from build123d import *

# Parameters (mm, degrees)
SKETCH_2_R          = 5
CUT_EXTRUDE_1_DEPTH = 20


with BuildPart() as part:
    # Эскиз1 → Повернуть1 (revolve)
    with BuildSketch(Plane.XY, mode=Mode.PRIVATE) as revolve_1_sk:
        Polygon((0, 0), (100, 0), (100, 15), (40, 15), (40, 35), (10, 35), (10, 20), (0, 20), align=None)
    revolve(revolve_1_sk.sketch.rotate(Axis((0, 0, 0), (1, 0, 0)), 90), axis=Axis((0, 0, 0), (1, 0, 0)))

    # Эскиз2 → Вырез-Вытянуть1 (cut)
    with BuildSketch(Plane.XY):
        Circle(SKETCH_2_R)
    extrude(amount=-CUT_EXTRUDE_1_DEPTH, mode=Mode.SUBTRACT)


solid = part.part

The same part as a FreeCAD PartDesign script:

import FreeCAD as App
import Part
import Sketcher
Q = App.Units.Quantity


def add_polygon(sketch, points):
    """Adds a closed chain of lines whose ends are joined by coincident constraints."""
    first, n = sketch.GeometryCount, len(points)
    for a, b in zip(points, points[1:] + points[:1]):
        sketch.addGeometry(Part.LineSegment(App.Vector(*a, 0), App.Vector(*b, 0)), False)
    for i in range(n):
        sketch.addConstraint(Sketcher.Constraint("Coincident", first + i, 2, first + (i + 1) % n, 1))

doc = App.newDocument("Part")
body = doc.addObject("PartDesign::Body", "Body")

sketch1 = body.newObject("Sketcher::SketchObject", "Sketch")
sketch1.AttachmentSupport = (doc.getObject("XY_Plane"), [""])
sketch1.MapMode = "FlatFace"
add_polygon(sketch1, [(0, 0), (100, 0), (100, 15), (40, 15), (40, 35), (10, 35), (10, 20), (0, 20)])
sketch1.addConstraint([
    Sketcher.Constraint("Horizontal", 0),
    Sketcher.Constraint("Vertical", 1),
    Sketcher.Constraint("Horizontal", 2),
    Sketcher.Constraint("Vertical", 3),
    Sketcher.Constraint("Horizontal", 4),
    Sketcher.Constraint("Vertical", 5),
    Sketcher.Constraint("Horizontal", 6),
    Sketcher.Constraint("Vertical", 7),
    Sketcher.Constraint("Coincident", 7, 2, -1, 1),
    Sketcher.Constraint("Equal", 1, 5),
    Sketcher.Constraint("DistanceX", 0, 1, 0, 2, Q("100 mm")),
    Sketcher.Constraint("DistanceX", 2, 2, 2, 1, Q("60 mm")),
    Sketcher.Constraint("DistanceX", 4, 2, 4, 1, Q("30 mm")),
    Sketcher.Constraint("DistanceY", 1, 1, 1, 2, Q("15 mm")),
    Sketcher.Constraint("DistanceY", 3, 1, 3, 2, Q("20 mm")),
])
revolution = body.newObject("PartDesign::Revolution", "Revolution")
revolution.Profile = sketch1
revolution.ReferenceAxis = (sketch1, ["H_Axis"])
revolution.Angle = 360

sketch2 = body.newObject("Sketcher::SketchObject", "Sketch001")
sketch2.AttachmentSupport = (doc.getObject("XY_Plane"), [""])
sketch2.MapMode = "FlatFace"
sketch2.addGeometry(Part.Circle(App.Vector(0, 0, 0), App.Vector(0, 0, 1), 5), False)
sketch2.addConstraint([
    Sketcher.Constraint("Coincident", 0, 3, -1, 1),
    Sketcher.Constraint("Diameter", 0, Q("10 mm")),
])
pocket1 = body.newObject("PartDesign::Pocket", "Pocket")
pocket1.Profile = sketch2
pocket1.Length = 20

doc.recompute()
